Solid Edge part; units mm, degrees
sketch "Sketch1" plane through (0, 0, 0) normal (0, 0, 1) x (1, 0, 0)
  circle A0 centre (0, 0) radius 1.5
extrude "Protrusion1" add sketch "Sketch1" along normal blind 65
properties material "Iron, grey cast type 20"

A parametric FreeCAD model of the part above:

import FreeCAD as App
import Part
import Sketcher
from FreeCAD import Vector

doc = App.newDocument("Part")
body = doc.addObject("PartDesign::Body", "Body")

sketch1 = doc.addObject("Sketcher::SketchObject", "Sketch")
body.addObject(sketch1)
sketch1.AttachmentSupport = (doc.XY_Plane, [""])
sketch1.MapMode = "FlatFace"
sketch1.addGeometry(Part.Circle(Vector(0, 0, 0), Vector(0, 0, 1), 1.5), False)
sketch1.addConstraint([
    Sketcher.Constraint("Coincident", 0, 3, -1, 1),
    Sketcher.Constraint("Diameter", 0, 3.0),
])
pad1 = doc.addObject("PartDesign::Pad", "Pad")
body.addObject(pad1)
pad1.Profile = sketch1
pad1.Length = 65

doc.recompute()
